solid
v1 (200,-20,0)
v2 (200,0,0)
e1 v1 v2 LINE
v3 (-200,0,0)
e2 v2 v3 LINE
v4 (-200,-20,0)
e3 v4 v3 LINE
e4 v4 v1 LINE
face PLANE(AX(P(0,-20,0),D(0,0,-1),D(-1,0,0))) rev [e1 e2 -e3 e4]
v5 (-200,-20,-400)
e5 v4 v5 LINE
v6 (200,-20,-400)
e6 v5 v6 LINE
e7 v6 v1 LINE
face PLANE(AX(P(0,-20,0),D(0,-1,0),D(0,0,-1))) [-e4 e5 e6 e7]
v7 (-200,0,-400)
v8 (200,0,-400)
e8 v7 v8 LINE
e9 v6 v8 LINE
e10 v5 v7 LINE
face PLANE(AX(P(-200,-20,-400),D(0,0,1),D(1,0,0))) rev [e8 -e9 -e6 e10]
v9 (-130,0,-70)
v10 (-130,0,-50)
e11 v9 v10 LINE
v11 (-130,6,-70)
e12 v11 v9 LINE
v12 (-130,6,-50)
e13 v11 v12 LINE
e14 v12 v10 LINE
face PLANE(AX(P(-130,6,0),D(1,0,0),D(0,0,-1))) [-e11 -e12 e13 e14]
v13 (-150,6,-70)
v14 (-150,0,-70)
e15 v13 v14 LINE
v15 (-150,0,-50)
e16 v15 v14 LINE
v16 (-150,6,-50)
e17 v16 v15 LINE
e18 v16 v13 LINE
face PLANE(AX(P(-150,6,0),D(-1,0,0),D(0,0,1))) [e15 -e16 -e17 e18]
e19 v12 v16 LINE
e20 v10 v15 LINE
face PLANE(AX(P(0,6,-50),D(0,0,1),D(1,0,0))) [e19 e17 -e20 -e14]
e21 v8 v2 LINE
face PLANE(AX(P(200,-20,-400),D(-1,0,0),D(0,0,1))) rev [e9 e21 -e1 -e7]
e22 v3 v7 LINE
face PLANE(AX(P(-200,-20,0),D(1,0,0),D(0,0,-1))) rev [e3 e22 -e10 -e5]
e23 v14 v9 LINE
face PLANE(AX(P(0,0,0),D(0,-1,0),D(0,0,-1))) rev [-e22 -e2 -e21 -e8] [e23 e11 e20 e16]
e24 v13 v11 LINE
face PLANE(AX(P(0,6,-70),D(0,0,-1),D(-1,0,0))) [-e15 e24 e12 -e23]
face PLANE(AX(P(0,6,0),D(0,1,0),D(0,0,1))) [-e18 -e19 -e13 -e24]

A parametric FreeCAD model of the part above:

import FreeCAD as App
import Part
import Sketcher
from FreeCAD import Vector
Q = App.Units.Quantity


def add_polygon(sketch, points):
    """Adds a closed chain of lines whose ends are joined by coincident constraints."""
    first, n = sketch.GeometryCount, len(points)
    for a, b in zip(points, points[1:] + points[:1]):
        sketch.addGeometry(Part.LineSegment(App.Vector(*a, 0), App.Vector(*b, 0)), False)
    for i in range(n):
        sketch.addConstraint(Sketcher.Constraint("Coincident", first + i, 2, first + (i + 1) % n, 1))

doc = App.newDocument("Part")
body = doc.addObject("PartDesign::Body", "Body")

# Sketch on XZ plane
sketch1 = body.newObject("Sketcher::SketchObject", "Sketch")
sketch1.AttachmentSupport = (doc.getObject("XZ_Plane"), [""])
sketch1.MapMode = "FlatFace"
add_polygon(sketch1, [(200, 0), (200, -400), (-200, -400), (-200, 0)])  # lines 0-3
sketch1.addConstraint([
    Sketcher.Constraint("Vertical", 0),
    Sketcher.Constraint("Horizontal", 1),
    Sketcher.Constraint("Vertical", 2),
    Sketcher.Constraint("Horizontal", 3),
    Sketcher.Constraint("Symmetric", 2, 2, 3, 2, -1, 1),
    Sketcher.Constraint("Equal", 3, 0),
    Sketcher.Constraint("DistanceX", 1, 2, 1, 1, Q("400 mm")),
])
pad1 = body.newObject("PartDesign::Pad", "Pad")
pad1.Profile = sketch1
pad1.Length = 20

# Sketch on XZ plane
sketch2 = body.newObject("Sketcher::SketchObject", "Sketch001")
sketch2.AttachmentSupport = (doc.getObject("XZ_Plane"), [""])
sketch2.MapMode = "FlatFace"
add_polygon(sketch2, [(-150, -70), (-150, -50), (-130, -50), (-130, -70)])  # lines 0-3
sketch2.addConstraint([
    Sketcher.Constraint("Vertical", 0),
    Sketcher.Constraint("Horizontal", 1),
    Sketcher.Constraint("Vertical", 2),
    Sketcher.Constraint("Horizontal", 3),
    Sketcher.Constraint("Equal", 3, 0),
    Sketcher.Constraint("DistanceX", 1, 1, 1, 2, Q("20 mm")),
    Sketcher.Constraint("DistanceX", 0, 2, -1, 1, Q("150 mm")),
    Sketcher.Constraint("DistanceY", 0, 2, -1, 1, Q("50 mm")),
])
pad2 = body.newObject("PartDesign::Pad", "Pad001")
pad2.Profile = sketch2
pad2.Length = 6
pad2.Reversed = True

doc.recompute()
